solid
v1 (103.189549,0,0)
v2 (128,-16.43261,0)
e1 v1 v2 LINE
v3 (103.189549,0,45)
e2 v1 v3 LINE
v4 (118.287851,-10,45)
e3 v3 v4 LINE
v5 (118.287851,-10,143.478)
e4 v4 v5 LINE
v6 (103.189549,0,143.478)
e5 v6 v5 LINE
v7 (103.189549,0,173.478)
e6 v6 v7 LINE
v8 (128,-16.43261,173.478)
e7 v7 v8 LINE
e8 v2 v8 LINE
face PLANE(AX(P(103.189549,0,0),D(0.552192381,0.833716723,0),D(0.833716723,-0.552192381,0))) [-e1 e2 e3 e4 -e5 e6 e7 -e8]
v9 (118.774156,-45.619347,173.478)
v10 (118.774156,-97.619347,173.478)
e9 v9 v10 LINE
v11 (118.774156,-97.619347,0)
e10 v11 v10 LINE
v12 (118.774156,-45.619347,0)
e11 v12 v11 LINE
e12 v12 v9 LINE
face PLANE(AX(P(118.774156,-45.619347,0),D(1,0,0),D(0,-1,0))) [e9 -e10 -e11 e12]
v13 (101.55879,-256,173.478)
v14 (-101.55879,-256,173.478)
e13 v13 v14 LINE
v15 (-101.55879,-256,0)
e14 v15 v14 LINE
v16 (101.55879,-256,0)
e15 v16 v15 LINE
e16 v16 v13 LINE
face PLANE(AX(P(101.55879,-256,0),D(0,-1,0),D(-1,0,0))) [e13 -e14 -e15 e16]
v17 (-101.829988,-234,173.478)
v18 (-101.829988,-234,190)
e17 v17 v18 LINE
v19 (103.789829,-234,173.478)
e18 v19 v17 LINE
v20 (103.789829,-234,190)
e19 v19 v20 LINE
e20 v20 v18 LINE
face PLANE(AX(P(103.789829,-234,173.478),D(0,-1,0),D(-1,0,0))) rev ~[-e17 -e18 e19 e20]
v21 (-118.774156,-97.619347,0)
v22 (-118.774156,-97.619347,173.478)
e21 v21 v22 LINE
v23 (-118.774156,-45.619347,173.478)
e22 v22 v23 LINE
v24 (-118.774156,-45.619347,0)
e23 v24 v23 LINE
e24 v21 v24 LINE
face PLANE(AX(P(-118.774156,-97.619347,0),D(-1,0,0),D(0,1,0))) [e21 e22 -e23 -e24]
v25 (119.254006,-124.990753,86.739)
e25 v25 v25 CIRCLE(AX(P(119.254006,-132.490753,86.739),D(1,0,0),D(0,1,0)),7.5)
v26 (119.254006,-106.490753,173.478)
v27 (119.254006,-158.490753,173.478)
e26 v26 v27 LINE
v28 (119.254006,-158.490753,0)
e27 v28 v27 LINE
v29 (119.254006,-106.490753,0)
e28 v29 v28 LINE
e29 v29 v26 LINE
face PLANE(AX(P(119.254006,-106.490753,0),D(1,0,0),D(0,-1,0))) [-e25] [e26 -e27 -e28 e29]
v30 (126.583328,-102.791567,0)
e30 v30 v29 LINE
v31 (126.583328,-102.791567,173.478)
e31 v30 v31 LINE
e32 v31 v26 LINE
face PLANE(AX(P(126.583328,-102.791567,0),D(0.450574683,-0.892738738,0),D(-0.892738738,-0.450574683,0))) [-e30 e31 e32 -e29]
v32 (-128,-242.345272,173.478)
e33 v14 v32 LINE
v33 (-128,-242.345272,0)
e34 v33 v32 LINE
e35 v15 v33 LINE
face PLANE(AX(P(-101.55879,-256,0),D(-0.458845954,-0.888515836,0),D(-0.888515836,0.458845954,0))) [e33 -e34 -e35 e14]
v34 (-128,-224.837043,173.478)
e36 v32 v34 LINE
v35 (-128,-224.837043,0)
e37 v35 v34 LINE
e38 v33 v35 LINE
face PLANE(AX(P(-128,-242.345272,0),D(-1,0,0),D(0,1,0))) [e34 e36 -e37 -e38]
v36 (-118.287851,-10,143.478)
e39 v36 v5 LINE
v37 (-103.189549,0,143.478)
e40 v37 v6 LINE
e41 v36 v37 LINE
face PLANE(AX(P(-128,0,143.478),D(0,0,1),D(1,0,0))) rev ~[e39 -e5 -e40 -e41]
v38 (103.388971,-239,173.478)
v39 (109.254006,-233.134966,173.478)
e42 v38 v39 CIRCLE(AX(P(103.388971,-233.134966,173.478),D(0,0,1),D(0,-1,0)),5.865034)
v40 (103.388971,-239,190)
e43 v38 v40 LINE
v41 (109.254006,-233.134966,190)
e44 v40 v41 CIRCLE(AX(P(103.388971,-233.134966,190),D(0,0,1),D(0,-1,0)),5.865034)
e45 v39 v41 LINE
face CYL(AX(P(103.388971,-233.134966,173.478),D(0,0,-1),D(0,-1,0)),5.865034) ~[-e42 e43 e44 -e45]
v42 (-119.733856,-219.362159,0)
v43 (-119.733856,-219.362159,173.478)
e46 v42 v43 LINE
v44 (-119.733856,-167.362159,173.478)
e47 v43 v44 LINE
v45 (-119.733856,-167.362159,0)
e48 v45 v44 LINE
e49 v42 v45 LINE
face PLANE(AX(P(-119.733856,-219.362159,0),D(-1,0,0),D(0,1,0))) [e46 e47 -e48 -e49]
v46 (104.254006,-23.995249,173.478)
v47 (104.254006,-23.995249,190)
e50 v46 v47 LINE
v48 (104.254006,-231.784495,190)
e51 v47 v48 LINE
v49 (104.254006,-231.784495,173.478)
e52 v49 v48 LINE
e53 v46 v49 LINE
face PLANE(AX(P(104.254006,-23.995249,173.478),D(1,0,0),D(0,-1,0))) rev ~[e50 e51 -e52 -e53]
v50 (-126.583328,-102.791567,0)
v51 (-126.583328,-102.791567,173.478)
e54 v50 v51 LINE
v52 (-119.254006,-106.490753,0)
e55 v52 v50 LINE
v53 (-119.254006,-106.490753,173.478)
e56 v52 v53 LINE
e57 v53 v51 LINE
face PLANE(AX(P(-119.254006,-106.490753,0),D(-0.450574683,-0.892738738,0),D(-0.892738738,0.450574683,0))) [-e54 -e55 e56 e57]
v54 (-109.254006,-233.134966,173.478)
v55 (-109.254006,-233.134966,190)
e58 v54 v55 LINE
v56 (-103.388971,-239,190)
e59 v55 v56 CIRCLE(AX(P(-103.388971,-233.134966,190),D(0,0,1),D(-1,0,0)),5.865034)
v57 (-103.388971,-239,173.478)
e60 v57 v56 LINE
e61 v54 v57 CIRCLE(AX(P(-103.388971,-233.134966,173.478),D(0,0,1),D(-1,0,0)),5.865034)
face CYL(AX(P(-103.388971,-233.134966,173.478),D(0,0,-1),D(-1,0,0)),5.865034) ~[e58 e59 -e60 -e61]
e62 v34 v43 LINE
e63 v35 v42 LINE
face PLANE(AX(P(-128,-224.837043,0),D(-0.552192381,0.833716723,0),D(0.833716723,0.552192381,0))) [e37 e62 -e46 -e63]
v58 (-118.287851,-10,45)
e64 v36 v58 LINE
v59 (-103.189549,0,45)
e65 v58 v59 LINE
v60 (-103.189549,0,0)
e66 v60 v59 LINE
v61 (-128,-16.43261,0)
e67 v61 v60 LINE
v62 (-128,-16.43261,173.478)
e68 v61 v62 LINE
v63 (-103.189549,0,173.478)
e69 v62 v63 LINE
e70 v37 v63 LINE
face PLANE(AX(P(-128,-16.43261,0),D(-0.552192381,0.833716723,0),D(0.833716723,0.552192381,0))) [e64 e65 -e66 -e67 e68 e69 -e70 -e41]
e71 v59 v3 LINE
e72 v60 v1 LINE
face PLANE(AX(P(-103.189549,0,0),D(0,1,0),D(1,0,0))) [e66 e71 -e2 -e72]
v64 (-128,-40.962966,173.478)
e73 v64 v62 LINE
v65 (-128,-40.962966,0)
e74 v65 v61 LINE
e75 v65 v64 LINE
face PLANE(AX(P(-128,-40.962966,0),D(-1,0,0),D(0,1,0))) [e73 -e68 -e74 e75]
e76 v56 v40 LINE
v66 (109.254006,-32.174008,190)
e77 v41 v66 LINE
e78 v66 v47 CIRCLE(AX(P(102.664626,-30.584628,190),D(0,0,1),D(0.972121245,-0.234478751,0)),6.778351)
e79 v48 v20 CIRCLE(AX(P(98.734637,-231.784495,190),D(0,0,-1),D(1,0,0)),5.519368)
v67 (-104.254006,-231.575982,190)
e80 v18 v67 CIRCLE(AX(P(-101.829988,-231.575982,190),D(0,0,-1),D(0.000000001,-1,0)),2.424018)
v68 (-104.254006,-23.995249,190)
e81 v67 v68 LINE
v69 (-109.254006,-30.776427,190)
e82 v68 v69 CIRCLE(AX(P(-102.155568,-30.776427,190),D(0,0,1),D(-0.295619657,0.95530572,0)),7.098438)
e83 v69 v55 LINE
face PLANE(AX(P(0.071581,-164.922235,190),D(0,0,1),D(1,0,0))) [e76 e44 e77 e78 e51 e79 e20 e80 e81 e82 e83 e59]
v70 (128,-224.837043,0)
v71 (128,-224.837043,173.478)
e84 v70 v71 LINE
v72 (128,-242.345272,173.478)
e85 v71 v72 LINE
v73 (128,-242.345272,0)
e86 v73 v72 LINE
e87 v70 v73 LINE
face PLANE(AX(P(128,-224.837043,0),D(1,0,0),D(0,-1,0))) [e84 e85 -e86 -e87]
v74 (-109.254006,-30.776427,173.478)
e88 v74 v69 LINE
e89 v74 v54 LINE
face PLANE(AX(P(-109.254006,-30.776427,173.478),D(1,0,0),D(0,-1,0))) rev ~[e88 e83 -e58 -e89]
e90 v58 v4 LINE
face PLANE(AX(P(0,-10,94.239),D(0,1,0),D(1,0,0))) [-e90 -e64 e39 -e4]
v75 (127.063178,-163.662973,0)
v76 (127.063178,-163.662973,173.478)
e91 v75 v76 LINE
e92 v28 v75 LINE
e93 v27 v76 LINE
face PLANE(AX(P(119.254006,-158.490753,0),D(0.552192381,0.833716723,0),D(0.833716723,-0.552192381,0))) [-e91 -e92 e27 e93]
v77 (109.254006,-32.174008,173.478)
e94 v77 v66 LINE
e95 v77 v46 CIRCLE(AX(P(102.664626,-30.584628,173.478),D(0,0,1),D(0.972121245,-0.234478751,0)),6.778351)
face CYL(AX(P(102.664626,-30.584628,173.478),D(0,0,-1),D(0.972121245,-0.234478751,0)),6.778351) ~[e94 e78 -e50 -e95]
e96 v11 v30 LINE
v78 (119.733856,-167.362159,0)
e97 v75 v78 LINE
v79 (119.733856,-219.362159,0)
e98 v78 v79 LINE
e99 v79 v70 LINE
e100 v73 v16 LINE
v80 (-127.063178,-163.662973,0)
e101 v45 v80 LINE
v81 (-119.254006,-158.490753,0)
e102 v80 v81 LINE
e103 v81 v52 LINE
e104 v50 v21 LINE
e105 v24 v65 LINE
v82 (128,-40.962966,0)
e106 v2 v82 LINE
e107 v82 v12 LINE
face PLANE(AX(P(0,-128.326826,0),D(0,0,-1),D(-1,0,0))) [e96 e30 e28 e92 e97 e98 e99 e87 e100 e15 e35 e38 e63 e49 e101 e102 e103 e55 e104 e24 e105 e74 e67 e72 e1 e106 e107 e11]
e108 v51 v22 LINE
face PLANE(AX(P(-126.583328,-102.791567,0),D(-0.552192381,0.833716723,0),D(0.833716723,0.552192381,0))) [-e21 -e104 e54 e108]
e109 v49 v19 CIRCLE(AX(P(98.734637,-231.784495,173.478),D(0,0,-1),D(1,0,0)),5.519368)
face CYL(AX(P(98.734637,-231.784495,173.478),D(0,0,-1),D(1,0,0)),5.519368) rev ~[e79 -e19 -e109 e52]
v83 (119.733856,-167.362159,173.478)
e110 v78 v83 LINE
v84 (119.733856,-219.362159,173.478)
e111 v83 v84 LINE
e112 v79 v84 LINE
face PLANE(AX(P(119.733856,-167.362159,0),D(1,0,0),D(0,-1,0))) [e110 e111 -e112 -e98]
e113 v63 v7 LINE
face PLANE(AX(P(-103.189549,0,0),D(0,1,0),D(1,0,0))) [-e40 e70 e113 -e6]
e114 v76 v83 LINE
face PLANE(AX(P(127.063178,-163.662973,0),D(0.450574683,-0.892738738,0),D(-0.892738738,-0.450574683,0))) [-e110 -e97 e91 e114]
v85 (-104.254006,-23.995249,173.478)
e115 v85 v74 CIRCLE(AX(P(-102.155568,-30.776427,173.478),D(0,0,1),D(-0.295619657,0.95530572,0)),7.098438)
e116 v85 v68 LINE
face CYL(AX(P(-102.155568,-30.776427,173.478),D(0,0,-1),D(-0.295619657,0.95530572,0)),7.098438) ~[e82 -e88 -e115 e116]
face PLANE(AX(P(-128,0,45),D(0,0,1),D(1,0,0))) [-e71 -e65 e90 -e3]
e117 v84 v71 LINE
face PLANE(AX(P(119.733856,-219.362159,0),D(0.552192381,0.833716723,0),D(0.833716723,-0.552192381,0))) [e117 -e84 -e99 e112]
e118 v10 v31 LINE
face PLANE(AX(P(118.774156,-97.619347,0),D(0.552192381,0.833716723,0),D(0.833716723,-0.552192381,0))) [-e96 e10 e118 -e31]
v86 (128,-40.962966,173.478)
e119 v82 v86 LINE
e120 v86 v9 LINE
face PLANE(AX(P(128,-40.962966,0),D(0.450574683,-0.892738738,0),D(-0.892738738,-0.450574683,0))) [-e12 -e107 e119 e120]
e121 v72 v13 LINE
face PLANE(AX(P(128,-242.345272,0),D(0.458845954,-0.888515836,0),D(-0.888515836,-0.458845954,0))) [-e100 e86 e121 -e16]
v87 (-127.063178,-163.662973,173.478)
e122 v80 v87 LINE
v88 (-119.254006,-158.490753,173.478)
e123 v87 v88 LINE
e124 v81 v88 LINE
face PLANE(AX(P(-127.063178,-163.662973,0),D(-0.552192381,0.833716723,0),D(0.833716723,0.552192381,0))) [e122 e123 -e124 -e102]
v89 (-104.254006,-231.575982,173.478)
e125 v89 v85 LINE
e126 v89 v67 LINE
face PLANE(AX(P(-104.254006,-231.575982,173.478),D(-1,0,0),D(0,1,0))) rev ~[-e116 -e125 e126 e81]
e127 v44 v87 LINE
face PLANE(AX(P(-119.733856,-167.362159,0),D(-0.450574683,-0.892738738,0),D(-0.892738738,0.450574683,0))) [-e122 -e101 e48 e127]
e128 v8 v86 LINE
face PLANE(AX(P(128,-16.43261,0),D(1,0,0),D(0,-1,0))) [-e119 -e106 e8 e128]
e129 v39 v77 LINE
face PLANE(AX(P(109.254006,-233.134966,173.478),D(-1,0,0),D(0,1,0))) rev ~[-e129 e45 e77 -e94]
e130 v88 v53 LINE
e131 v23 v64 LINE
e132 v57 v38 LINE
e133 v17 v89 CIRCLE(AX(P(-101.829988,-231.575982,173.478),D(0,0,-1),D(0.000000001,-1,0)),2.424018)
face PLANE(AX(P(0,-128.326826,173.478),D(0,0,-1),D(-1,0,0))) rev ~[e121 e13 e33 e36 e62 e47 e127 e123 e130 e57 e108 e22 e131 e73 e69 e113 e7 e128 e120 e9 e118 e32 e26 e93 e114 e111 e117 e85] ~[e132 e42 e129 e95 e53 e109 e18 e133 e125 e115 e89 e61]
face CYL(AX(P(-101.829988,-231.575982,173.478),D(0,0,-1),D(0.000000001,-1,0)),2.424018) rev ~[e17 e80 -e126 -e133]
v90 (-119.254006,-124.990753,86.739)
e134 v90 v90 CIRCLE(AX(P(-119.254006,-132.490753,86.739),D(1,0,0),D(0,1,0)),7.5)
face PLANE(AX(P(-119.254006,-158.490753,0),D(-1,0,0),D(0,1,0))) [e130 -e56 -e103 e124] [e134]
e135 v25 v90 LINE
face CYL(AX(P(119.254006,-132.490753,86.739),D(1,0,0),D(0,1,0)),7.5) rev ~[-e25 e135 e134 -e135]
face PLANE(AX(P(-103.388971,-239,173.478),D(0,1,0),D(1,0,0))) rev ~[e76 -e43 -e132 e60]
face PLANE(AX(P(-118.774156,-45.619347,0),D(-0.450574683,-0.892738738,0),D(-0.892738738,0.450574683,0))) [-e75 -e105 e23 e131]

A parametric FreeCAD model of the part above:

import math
import FreeCAD as App
import Part
import Sketcher
from FreeCAD import Vector

doc = App.newDocument("Part")
body = doc.addObject("PartDesign::Body", "Body")

# Sketch on XY plane
sketch1 = body.newObject("Sketcher::SketchObject", "Sketch")
sketch1.AttachmentSupport = (doc.getObject("XY_Plane"), [""])
sketch1.MapMode = "FlatFace"
sketch1.addGeometry([
    Part.LineSegment(Vector(103, 0, 0), Vector(-103, 0, 0)),  # 0
    Part.LineSegment(Vector(-103, 0, 0), Vector(-128, -16, 0)),  # 1
    Part.LineSegment(Vector(-128, -16, 0), Vector(-128, -41, 0)),  # 2
    Part.LineSegment(Vector(-128, -41, 0), Vector(-119, -46, 0)),  # 3
    Part.LineSegment(Vector(-119, -46, 0), Vector(-119, -98, 0)),  # 4
    Part.LineSegment(Vector(-119, -98, 0), Vector(-127, -103, 0)),  # 5
    Part.LineSegment(Vector(-127, -103, 0), Vector(-119, -106, 0)),  # 6
    Part.LineSegment(Vector(-119, -106, 0), Vector(-119, -158, 0)),  # 7
    Part.LineSegment(Vector(-119, -158, 0), Vector(-127, -164, 0)),  # 8
    Part.LineSegment(Vector(-127, -164, 0), Vector(-120, -167, 0)),  # 9
    Part.LineSegment(Vector(-120, -167, 0), Vector(-120, -219, 0)),  # 10
    Part.LineSegment(Vector(-120, -219, 0), Vector(-128, -225, 0)),  # 11
    Part.LineSegment(Vector(-128, -225, 0), Vector(-128, -242, 0)),  # 12
    Part.LineSegment(Vector(-128, -242, 0), Vector(-102, -256, 0)),  # 13
    Part.LineSegment(Vector(-102, -256, 0), Vector(102, -256, 0)),  # 14
    Part.LineSegment(Vector(102, -256, 0), Vector(128, -242, 0)),  # 15
    Part.LineSegment(Vector(128, -242, 0), Vector(128, -225, 0)),  # 16
    Part.LineSegment(Vector(128, -225, 0), Vector(120, -219, 0)),  # 17
    Part.LineSegment(Vector(120, -219, 0), Vector(120, -167, 0)),  # 18
    Part.LineSegment(Vector(120, -167, 0), Vector(127, -164, 0)),  # 19
    Part.LineSegment(Vector(127, -164, 0), Vector(119, -158, 0)),  # 20
    Part.LineSegment(Vector(119, -158, 0), Vector(119, -106, 0)),  # 21
    Part.LineSegment(Vector(119, -106, 0), Vector(127, -103, 0)),  # 22
    Part.LineSegment(Vector(127, -103, 0), Vector(119, -98, 0)),  # 23
    Part.LineSegment(Vector(119, -98, 0), Vector(119, -46, 0)),  # 24
    Part.LineSegment(Vector(119, -46, 0), Vector(128, -41, 0)),  # 25
    Part.LineSegment(Vector(128, -41, 0), Vector(128, -16, 0)),  # 26
    Part.LineSegment(Vector(128, -16, 0), Vector(103, 0, 0)),  # 27
], False)
sketch1.addConstraint([
    Sketcher.Constraint("Coincident", 0, 2, 1, 1),
    Sketcher.Constraint("Coincident", 1, 2, 2, 1),
    Sketcher.Constraint("Coincident", 2, 2, 3, 1),
    Sketcher.Constraint("Coincident", 3, 2, 4, 1),
    Sketcher.Constraint("Coincident", 4, 2, 5, 1),
    Sketcher.Constraint("Coincident", 5, 2, 6, 1),
    Sketcher.Constraint("Coincident", 6, 2, 7, 1),
    Sketcher.Constraint("Coincident", 7, 2, 8, 1),
    Sketcher.Constraint("Coincident", 8, 2, 9, 1),
    Sketcher.Constraint("Coincident", 9, 2, 10, 1),
    Sketcher.Constraint("Coincident", 10, 2, 11, 1),
    Sketcher.Constraint("Coincident", 11, 2, 12, 1),
    Sketcher.Constraint("Coincident", 12, 2, 13, 1),
    Sketcher.Constraint("Coincident", 13, 2, 14, 1),
    Sketcher.Constraint("Coincident", 14, 2, 15, 1),
    Sketcher.Constraint("Coincident", 15, 2, 16, 1),
    Sketcher.Constraint("Coincident", 16, 2, 17, 1),
    Sketcher.Constraint("Coincident", 17, 2, 18, 1),
    Sketcher.Constraint("Coincident", 18, 2, 19, 1),
    Sketcher.Constraint("Coincident", 19, 2, 20, 1),
    Sketcher.Constraint("Coincident", 20, 2, 21, 1),
    Sketcher.Constraint("Coincident", 21, 2, 22, 1),
    Sketcher.Constraint("Coincident", 22, 2, 23, 1),
    Sketcher.Constraint("Coincident", 23, 2, 24, 1),
    Sketcher.Constraint("Coincident", 24, 2, 25, 1),
    Sketcher.Constraint("Coincident", 25, 2, 26, 1),
    Sketcher.Constraint("Coincident", 26, 2, 27, 1),
    Sketcher.Constraint("Coincident", 27, 2, 0, 1),
    Sketcher.Constraint("Horizontal", 0),
    Sketcher.Constraint("Vertical", 2),
    Sketcher.Constraint("Vertical", 4),
    Sketcher.Constraint("Vertical", 7),
    Sketcher.Constraint("Vertical", 10),
    Sketcher.Constraint("Vertical", 12),
    Sketcher.Constraint("Horizontal", 14),
    Sketcher.Constraint("Vertical", 16),
    Sketcher.Constraint("Vertical", 18),
    Sketcher.Constraint("Vertical", 21),
    Sketcher.Constraint("Vertical", 24),
    Sketcher.Constraint("Vertical", 26),
    Sketcher.Constraint("Symmetric", 0, 2, 27, 2, -1, 1),
    Sketcher.Constraint("Symmetric", 12, 2, 15, 2, -2),
    Sketcher.Constraint("Symmetric", 10, 2, 17, 2, -2),
    Sketcher.Constraint("Symmetric", 8, 2, 19, 2, -2),
    Sketcher.Constraint("Symmetric", 7, 2, 20, 2, -2),
    Sketcher.Constraint("Symmetric", 5, 2, 22, 2, -2),
    Sketcher.Constraint("Symmetric", 4, 2, 23, 2, -2),
    Sketcher.Constraint("Symmetric", 2, 2, 25, 2, -2),
    Sketcher.Constraint("Parallel", 1, 5),
    Sketcher.Constraint("Parallel", 3, 6),
    Sketcher.Constraint("Parallel", 5, 8),
    Sketcher.Constraint("Parallel", 6, 9),
    Sketcher.Constraint("Parallel", 8, 11),
    Sketcher.Constraint("Parallel", 17, 20),
    Sketcher.Constraint("Parallel", 19, 22),
    Sketcher.Constraint("Parallel", 22, 25),
    Sketcher.Constraint("Parallel", 23, 27),
    Sketcher.Constraint("Horizontal", 9, 2, 18, 2),
    Sketcher.Constraint("Vertical", 2, 2, 11, 2),
    Sketcher.Constraint("Equal", 4, 7),
    Sketcher.Constraint("Equal", 7, 10),
    Sketcher.Constraint("Equal", 5, 8),
    Sketcher.Constraint("Equal", 6, 9),
    Sketcher.Constraint("Equal", 1, 13),
    Sketcher.Constraint("Equal", 13, 15),
    Sketcher.Constraint("DistanceY", 4, 2, 4, 1, 52.0),
    Sketcher.Constraint("DistanceX", 1, 2, -1, 1, 128.0),
    Sketcher.Constraint("DistanceY", 13, 2, -1, 1, 256.0),
    Sketcher.Constraint("Distance", 5, 9.366698),
    Sketcher.Constraint("DistanceX", 14, 1, 14, 2, 203.11758),
    Sketcher.Constraint("DistanceY", 12, 2, 12, 1, 17.508229),
    Sketcher.Constraint("DistanceY", 5, 2, 2, 2, 61.828601),
    Sketcher.Constraint("DistanceX", 9, 2, 4, 2, 0.9597),
    Sketcher.Constraint("DistanceY", 12, 2, 8, 2, 78.682299),
    Sketcher.Constraint("Distance", 1, 29.75885),
    Sketcher.Constraint("Distance", 6, 8.20993),
])
pad1 = body.newObject("PartDesign::Pad", "Pad")
pad1.Profile = sketch1
pad1.Length = 173.478

# Sketch on XY plane
sketch2 = body.newObject("Sketcher::SketchObject", "Sketch001")
sketch2.AttachmentSupport = (doc.getObject("XY_Plane"), [""])
sketch2.MapMode = "FlatFace"
sketch2.AttachmentOffset = App.Placement(Vector(0, 0, 173.478), App.Rotation())
sketch2.addGeometry([
    Part.LineSegment(Vector(-109.3, -30.8, 0), Vector(-109.3, -233.1, 0)),  # 0
    Part.ArcOfCircle(Part.Circle(Vector(-103.4, -233.1, 0), Vector(0, 0, 1), 5.9), math.radians(180), math.radians(270)),  # 1
    Part.LineSegment(Vector(-103.4, -239, 0), Vector(103.4, -239, 0)),  # 2
    Part.ArcOfCircle(Part.Circle(Vector(103.4, -233.1, 0), Vector(0, 0, 1), 5.9), math.radians(-90), math.radians(0)),  # 3
    Part.LineSegment(Vector(109.3, -233.1, 0), Vector(109.3, -32.2, 0)),  # 4
    Part.ArcOfCircle(Part.Circle(Vector(102.7, -30.6, 0), Vector(0, 0, 1), 6.8), math.radians(-14), math.radians(76)),  # 5
    Part.LineSegment(Vector(104.3, -24, 0), Vector(104.3, -231.8, 0)),  # 6
    Part.ArcOfCircle(Part.Circle(Vector(98.7, -231.8, 0), Vector(0, 0, 1), 5.5), math.radians(-24), math.radians(0)),  # 7
    Part.LineSegment(Vector(103.8, -234, 0), Vector(-101.8, -234, 0)),  # 8
    Part.ArcOfCircle(Part.Circle(Vector(-101.8, -231.6, 0), Vector(0, 0, 1), 2.4), math.radians(180), math.radians(270)),  # 9
    Part.LineSegment(Vector(-104.3, -231.6, 0), Vector(-104.3, -24, 0)),  # 10
    Part.ArcOfCircle(Part.Circle(Vector(-102.2, -30.8, 0), Vector(0, 0, 1), 7.1), math.radians(107), math.radians(180)),  # 11
], False)
sketch2.addConstraint([
    Sketcher.Constraint("Tangent", 0, 2, 1, 1),
    Sketcher.Constraint("Tangent", 1, 2, 2, 1),
    Sketcher.Constraint("Tangent", 2, 2, 3, 1),
    Sketcher.Constraint("Tangent", 3, 2, 4, 1),
    Sketcher.Constraint("Coincident", 4, 2, 5, 1),
    Sketcher.Constraint("Coincident", 5, 2, 6, 1),
    Sketcher.Constraint("Tangent", 6, 2, 7, 2),
    Sketcher.Constraint("Coincident", 7, 1, 8, 1),
    Sketcher.Constraint("Tangent", 8, 2, 9, 2),
    Sketcher.Constraint("Tangent", 9, 1, 10, 1),
    Sketcher.Constraint("Coincident", 10, 2, 11, 1),
    Sketcher.Constraint("Tangent", 11, 2, 0, 1),
    Sketcher.Constraint("Vertical", 0),
    Sketcher.Constraint("Horizontal", 2),
    Sketcher.Constraint("Vertical", 4),
    Sketcher.Constraint("Vertical", 6),
    Sketcher.Constraint("Horizontal", 8),
    Sketcher.Constraint("Vertical", 10),
    Sketcher.Constraint("Equal", 1, 3),
    Sketcher.Constraint("Symmetric", 5, 2, 10, 2, -2),
    Sketcher.Constraint("DistanceY", 1, 2, -1, 1, 239.0),
    Sketcher.Constraint("DistanceY", 7, 1, -1, 1, 234.0),
    Sketcher.Constraint("DistanceX", 5, 2, 4, 2, 5.0),
    Sketcher.Constraint("DistanceX", 0, 2, 9, 1, 5.0),
    Sketcher.Constraint("Radius", 5, 6.778351),
    Sketcher.Constraint("Radius", 7, 5.519368),
    Sketcher.Constraint("Radius", 9, 2.424018),
    Sketcher.Constraint("Radius", 1, 5.865034),
    Sketcher.Constraint("Radius", 11, 7.098438),
    Sketcher.Constraint("DistanceY", 0, 2, 0, 1, 202.358538),
    Sketcher.Constraint("DistanceY", 11, 3, 5, 3, 0.191799),
    Sketcher.Constraint("DistanceX", 2, 1, 2, 2, 206.777943),
    Sketcher.Constraint("DistanceX", 8, 2, 8, 1, 205.619817),
])
pad2 = body.newObject("PartDesign::Pad", "Pad001")
pad2.Profile = sketch2
pad2.Length = 16.522

# Sketch on XZ plane
sketch3 = body.newObject("Sketcher::SketchObject", "Sketch002")
sketch3.AttachmentSupport = (doc.getObject("XZ_Plane"), [""])
sketch3.MapMode = "FlatFace"
sketch3.addGeometry([
    Part.LineSegment(Vector(-128, 45, 0), Vector(-128, 143, 0)),
    Part.LineSegment(Vector(-128, 143, 0), Vector(128, 143, 0)),
    Part.LineSegment(Vector(128, 143, 0), Vector(128, 45, 0)),
    Part.LineSegment(Vector(128, 45, 0), Vector(-128, 45, 0)),
], False)
sketch3.addConstraint([
    Sketcher.Constraint("Coincident", 0, 2, 1, 1),
    Sketcher.Constraint("Coincident", 1, 2, 2, 1),
    Sketcher.Constraint("Coincident", 2, 2, 3, 1),
    Sketcher.Constraint("Coincident", 3, 2, 0, 1),
    Sketcher.Constraint("Vertical", 0),
    Sketcher.Constraint("Horizontal", 1),
    Sketcher.Constraint("Vertical", 2),
    Sketcher.Constraint("Horizontal", 3),
    Sketcher.Constraint("DistanceX", 1, 1, 1, 2, 256.0),
    Sketcher.Constraint("DistanceX", 0, 2, -1, 1, 128.0),
    Sketcher.Constraint("DistanceY", -1, 1, 2, 2, 45.0),
    Sketcher.Constraint("DistanceY", 0, 1, 0, 2, 98.478),
])
pocket1 = body.newObject("PartDesign::Pocket", "Pocket")
pocket1.Profile = sketch3
pocket1.Length = 10
pocket1.Reversed = True

# Sketch on YZ plane
sketch4 = body.newObject("Sketcher::SketchObject", "Sketch003")
sketch4.AttachmentSupport = (doc.getObject("YZ_Plane"), [""])
sketch4.MapMode = "FlatFace"
sketch4.AttachmentOffset = App.Placement(Vector(0, 0, 119.254006), App.Rotation())
sketch4.addGeometry(Part.Circle(Vector(-132, 87, 0), Vector(0, 0, 1), 8), False)
sketch4.addConstraint([
    Sketcher.Constraint("Diameter", 0, 15.0),
    Sketcher.Constraint("DistanceY", -1, 1, 0, 3, 86.739),
    Sketcher.Constraint("DistanceX", 0, 3, -1, 1, 132.490753),
])
pocket2 = body.newObject("PartDesign::Pocket", "Pocket001")
pocket2.Profile = sketch4
pocket2.Type = "ThroughAll"

doc.recompute()
